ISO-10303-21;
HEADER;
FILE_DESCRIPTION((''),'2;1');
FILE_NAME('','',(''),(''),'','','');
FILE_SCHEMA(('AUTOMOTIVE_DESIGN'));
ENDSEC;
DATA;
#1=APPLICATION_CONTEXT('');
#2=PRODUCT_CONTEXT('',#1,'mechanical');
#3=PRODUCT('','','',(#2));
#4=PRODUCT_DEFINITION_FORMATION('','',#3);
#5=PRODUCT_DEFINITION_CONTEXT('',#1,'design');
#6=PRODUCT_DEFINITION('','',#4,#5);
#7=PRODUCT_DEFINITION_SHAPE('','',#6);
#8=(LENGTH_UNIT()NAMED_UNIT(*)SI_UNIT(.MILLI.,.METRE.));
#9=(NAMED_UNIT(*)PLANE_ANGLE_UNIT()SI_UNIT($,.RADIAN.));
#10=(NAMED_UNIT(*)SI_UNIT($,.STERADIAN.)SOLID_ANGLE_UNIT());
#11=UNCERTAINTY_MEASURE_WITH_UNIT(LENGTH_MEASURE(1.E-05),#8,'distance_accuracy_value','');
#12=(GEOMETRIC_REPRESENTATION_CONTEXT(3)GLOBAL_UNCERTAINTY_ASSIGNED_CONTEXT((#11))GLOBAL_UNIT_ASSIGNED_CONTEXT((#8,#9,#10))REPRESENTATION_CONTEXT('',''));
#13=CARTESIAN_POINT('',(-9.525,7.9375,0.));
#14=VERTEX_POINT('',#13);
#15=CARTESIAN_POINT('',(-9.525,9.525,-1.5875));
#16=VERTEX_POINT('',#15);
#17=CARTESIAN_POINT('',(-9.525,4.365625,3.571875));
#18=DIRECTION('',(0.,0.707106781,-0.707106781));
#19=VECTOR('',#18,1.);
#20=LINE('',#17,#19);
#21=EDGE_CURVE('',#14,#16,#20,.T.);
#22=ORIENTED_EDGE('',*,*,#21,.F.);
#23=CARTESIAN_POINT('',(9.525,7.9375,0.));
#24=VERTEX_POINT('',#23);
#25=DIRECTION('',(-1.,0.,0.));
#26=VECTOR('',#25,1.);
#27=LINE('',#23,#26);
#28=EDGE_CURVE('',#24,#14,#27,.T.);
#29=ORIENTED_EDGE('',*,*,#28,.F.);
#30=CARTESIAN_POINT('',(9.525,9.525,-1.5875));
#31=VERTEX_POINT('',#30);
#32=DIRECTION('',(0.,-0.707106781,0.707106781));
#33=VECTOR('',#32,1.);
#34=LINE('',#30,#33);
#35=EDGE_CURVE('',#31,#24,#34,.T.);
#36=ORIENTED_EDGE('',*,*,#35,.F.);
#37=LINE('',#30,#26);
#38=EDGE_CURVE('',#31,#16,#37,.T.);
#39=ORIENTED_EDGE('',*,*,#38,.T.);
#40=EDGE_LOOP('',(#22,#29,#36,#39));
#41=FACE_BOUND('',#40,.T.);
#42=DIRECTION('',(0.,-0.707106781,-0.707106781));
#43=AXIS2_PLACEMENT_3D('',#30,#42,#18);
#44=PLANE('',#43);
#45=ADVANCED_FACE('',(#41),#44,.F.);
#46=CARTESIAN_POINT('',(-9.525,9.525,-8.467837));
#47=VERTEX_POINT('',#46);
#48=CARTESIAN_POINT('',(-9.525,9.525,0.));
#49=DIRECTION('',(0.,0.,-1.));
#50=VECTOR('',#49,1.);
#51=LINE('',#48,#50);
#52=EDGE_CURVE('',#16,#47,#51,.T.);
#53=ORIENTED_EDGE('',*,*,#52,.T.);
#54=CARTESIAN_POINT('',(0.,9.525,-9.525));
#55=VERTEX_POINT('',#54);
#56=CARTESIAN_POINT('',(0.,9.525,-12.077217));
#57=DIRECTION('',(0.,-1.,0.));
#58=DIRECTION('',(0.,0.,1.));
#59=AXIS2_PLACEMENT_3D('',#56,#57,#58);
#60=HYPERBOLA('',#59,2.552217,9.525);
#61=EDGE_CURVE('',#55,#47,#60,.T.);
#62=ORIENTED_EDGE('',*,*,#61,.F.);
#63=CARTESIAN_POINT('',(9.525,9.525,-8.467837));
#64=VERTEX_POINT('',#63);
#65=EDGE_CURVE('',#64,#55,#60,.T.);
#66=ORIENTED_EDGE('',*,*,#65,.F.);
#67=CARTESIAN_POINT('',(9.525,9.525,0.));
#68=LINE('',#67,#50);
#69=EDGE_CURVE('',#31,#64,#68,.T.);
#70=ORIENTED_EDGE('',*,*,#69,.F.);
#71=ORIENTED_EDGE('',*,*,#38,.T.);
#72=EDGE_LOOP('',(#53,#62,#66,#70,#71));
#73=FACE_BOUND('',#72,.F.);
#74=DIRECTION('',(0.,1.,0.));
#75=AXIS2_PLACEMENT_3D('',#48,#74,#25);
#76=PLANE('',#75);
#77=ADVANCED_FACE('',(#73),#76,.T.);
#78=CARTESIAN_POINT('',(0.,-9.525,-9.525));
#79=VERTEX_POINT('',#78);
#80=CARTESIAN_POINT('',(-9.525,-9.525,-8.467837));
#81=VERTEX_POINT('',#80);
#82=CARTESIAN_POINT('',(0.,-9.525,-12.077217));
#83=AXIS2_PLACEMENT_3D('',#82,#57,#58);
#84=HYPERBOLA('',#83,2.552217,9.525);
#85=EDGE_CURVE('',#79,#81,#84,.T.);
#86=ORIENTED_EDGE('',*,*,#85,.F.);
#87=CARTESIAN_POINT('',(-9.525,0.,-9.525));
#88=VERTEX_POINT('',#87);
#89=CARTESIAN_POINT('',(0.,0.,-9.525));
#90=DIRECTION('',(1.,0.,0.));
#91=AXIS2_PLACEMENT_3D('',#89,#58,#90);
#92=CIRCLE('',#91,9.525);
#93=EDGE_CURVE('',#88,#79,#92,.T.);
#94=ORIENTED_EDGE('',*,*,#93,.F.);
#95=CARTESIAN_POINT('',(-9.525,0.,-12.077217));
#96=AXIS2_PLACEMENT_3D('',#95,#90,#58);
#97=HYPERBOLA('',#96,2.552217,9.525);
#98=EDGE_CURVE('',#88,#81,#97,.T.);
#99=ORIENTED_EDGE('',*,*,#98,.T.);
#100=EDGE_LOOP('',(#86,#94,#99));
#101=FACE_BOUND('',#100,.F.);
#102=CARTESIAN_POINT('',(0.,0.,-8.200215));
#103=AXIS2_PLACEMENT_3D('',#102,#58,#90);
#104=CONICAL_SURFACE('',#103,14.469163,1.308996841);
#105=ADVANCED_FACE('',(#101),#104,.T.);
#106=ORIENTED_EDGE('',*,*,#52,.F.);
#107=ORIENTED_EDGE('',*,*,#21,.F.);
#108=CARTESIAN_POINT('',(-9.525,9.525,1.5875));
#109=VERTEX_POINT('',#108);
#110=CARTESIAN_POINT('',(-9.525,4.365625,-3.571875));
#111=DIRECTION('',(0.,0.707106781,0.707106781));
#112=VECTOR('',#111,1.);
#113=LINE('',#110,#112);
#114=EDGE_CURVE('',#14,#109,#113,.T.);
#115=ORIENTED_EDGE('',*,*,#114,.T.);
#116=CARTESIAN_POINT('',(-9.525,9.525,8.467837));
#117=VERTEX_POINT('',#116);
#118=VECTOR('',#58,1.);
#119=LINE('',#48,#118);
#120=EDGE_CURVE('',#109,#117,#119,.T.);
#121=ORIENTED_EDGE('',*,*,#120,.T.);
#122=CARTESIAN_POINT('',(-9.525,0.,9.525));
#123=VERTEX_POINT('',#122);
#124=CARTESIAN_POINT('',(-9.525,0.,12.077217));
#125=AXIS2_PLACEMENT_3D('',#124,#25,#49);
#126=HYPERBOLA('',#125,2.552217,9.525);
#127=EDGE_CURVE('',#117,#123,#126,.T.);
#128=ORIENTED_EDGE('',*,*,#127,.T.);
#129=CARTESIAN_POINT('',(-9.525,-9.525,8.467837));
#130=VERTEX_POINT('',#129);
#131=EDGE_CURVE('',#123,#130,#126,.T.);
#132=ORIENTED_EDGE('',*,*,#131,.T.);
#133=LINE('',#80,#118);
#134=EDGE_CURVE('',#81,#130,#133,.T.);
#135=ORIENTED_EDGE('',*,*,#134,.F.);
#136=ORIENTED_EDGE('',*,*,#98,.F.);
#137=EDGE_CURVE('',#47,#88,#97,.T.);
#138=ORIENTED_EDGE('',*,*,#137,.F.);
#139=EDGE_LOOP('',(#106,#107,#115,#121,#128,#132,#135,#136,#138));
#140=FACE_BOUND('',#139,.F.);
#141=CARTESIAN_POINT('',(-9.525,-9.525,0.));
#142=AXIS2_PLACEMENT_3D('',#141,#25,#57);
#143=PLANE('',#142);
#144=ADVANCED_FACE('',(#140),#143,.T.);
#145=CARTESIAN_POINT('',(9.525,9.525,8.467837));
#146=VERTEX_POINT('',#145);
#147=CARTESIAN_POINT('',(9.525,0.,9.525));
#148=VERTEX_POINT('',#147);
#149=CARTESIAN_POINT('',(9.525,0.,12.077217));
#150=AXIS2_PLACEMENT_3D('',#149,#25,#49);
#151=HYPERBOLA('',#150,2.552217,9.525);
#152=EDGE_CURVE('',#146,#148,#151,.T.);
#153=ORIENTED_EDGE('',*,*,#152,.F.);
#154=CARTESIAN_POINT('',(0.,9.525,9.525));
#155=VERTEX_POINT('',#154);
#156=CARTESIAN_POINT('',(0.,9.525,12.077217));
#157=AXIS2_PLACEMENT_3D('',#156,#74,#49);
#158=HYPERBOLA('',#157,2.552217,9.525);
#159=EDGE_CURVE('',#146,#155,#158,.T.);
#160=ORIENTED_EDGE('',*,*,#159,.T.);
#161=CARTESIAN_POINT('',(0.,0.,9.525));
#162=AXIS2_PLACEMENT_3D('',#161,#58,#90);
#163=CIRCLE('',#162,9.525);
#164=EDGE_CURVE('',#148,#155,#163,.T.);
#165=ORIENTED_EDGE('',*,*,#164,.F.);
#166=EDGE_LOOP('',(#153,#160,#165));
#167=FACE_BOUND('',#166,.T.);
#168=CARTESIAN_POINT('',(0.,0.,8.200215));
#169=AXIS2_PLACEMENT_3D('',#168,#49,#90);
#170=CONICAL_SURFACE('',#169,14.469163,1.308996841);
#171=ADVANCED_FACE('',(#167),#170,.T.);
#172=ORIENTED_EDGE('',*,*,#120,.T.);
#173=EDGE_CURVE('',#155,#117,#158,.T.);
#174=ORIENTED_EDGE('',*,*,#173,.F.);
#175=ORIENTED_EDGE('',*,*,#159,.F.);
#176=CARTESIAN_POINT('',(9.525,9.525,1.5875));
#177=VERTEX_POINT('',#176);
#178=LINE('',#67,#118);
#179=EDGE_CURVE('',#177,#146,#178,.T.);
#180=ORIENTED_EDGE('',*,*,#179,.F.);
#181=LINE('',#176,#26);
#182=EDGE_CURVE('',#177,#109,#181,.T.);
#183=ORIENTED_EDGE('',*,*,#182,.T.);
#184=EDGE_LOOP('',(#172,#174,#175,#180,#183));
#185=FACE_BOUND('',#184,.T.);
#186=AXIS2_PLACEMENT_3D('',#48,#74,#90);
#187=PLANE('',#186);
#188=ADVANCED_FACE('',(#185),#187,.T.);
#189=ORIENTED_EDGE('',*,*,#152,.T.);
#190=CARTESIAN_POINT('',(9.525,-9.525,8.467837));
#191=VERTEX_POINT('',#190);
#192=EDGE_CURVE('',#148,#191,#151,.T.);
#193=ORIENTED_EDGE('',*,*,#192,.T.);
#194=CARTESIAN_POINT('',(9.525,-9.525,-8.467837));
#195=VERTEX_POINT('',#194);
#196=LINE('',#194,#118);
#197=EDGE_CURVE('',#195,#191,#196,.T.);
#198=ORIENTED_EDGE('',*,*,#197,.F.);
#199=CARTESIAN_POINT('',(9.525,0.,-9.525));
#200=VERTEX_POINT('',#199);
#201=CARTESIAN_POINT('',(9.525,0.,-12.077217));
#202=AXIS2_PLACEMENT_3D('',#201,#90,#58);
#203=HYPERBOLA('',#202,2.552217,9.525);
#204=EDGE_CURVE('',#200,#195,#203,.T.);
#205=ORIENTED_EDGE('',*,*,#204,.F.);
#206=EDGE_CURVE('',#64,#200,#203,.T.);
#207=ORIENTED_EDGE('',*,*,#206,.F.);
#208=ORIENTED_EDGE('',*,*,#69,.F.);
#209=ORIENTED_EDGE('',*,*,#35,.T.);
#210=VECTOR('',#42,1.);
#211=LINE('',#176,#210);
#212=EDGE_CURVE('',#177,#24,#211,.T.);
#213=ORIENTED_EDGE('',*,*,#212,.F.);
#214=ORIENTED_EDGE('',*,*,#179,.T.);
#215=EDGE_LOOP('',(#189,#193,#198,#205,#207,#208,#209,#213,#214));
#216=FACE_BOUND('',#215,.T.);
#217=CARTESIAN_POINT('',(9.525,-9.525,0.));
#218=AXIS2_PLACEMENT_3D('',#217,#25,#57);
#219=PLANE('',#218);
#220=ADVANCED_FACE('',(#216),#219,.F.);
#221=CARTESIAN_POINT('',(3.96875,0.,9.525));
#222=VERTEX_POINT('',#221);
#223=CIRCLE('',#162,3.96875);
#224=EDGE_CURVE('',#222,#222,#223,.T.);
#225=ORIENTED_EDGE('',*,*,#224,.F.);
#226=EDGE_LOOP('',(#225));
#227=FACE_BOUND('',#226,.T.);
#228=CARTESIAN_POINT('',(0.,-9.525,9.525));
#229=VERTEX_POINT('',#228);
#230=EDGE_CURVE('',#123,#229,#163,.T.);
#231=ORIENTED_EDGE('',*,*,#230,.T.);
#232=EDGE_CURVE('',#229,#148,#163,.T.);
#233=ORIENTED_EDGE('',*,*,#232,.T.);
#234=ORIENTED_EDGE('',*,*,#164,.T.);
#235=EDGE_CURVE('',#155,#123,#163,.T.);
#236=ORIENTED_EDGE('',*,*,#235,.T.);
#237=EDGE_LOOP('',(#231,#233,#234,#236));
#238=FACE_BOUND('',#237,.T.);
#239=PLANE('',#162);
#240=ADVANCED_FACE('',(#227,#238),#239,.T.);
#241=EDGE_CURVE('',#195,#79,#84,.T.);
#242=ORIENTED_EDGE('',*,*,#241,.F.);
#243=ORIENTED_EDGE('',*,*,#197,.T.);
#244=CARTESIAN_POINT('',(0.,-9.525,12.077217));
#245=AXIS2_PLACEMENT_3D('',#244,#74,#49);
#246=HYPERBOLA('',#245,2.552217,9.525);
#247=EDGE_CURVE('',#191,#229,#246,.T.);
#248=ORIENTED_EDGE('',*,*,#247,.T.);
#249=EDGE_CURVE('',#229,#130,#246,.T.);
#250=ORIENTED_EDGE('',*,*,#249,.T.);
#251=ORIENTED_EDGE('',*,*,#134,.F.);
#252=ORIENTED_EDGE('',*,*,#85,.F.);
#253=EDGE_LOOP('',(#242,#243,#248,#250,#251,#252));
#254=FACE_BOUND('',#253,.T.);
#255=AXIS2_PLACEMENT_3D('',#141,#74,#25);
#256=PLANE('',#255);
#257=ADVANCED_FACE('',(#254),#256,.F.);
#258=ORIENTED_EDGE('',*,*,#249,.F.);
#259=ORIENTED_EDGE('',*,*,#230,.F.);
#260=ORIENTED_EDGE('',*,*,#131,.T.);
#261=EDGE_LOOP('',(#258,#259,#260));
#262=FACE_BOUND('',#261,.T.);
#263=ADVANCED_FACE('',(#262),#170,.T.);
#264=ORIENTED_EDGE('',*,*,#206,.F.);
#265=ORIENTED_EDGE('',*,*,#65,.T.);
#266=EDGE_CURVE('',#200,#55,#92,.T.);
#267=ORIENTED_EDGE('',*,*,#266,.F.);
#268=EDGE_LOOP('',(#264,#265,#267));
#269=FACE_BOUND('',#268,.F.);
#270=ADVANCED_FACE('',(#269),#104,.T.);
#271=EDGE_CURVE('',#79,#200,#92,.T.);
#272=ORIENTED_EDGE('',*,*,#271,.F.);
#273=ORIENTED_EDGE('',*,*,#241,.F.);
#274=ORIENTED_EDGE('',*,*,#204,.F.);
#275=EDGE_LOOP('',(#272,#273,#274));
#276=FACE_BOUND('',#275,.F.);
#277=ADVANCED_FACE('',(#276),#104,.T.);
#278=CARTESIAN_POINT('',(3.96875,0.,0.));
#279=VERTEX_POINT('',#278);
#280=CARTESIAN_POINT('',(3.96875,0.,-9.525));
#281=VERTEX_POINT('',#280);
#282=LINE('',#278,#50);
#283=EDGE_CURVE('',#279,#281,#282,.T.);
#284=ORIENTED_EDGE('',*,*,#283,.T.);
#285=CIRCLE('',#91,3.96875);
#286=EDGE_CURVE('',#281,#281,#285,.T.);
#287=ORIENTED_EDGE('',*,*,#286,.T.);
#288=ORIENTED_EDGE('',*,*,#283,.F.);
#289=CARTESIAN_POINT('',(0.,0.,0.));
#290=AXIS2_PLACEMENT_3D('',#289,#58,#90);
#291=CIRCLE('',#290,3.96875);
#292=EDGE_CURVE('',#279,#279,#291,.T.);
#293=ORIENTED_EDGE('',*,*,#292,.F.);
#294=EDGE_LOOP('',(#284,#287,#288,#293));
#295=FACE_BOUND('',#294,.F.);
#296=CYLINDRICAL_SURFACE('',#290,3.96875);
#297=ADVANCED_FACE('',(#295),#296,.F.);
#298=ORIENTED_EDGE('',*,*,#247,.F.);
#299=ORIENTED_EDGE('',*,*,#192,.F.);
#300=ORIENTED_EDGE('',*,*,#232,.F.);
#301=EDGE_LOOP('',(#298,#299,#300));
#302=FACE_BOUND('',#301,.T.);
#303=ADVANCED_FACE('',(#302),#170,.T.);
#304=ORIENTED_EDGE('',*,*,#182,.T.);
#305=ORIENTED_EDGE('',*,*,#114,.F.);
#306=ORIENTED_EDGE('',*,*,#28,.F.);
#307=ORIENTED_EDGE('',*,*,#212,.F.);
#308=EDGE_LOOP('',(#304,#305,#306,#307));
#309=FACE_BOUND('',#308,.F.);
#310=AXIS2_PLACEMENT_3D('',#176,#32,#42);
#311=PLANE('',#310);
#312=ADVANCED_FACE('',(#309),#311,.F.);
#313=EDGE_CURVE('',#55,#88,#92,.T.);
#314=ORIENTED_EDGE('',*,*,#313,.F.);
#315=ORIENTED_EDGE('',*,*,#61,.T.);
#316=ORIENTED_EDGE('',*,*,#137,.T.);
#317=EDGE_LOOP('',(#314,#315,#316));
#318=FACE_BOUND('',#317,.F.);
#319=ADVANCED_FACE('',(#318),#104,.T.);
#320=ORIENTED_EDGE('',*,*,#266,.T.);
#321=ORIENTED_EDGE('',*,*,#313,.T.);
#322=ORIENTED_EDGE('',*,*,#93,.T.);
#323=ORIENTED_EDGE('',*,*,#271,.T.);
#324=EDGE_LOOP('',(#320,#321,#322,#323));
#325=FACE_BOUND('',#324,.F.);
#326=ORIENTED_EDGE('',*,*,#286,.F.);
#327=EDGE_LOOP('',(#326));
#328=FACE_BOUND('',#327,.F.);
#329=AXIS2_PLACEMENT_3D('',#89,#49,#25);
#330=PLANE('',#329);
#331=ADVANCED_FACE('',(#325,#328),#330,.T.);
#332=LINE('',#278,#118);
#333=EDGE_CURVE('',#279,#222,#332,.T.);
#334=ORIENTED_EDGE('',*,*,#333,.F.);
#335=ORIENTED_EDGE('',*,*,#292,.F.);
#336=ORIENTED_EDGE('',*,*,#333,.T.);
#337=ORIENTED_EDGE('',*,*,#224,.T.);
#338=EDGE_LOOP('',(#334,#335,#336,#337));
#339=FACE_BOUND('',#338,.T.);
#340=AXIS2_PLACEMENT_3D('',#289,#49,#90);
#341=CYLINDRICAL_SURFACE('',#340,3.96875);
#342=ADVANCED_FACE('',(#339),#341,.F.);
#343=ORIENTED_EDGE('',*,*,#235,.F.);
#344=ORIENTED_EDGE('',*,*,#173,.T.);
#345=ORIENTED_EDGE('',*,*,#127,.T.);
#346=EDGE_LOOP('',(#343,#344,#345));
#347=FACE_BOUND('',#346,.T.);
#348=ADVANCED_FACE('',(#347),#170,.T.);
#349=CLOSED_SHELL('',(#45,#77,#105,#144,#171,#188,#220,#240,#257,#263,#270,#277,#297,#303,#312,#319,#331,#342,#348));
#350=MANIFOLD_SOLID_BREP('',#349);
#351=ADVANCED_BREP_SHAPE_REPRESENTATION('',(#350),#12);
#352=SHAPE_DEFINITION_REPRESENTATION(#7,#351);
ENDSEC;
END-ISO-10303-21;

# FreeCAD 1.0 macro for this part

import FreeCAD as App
import Part
import Sketcher
Q = App.Units.Quantity

doc = App.newDocument("Part")
body = doc.addObject("PartDesign::Body", "Body")

# Sketch on XY plane
sketch1 = doc.addObject("Sketcher::SketchObject", "Sketch")
body.addObject(sketch1)
sketch1.AttachmentSupport = (doc.XY_Plane, [""])
sketch1.MapMode = "FlatFace"
sketch1.addGeometry(Part.LineSegment(App.Vector(-9.5, 9.5, 0), App.Vector(-9.5, -9.5, 0)), False)
sketch1.addGeometry(Part.LineSegment(App.Vector(-9.5, -9.5, 0), App.Vector(9.5, -9.5, 0)), False)
sketch1.addGeometry(Part.LineSegment(App.Vector(9.5, -9.5, 0), App.Vector(9.5, 9.5, 0)), False)
sketch1.addGeometry(Part.LineSegment(App.Vector(9.5, 9.5, 0), App.Vector(-9.5, 9.5, 0)), False)
sketch1.addGeometry(Part.Circle(App.Vector(0, 0, 0), App.Vector(0, 0, 1), 4), False)
sketch1.addConstraint(Sketcher.Constraint("Coincident", 0, 2, 1, 1))
sketch1.addConstraint(Sketcher.Constraint("Coincident", 1, 2, 2, 1))
sketch1.addConstraint(Sketcher.Constraint("Coincident", 2, 2, 3, 1))
sketch1.addConstraint(Sketcher.Constraint("Coincident", 3, 2, 0, 1))
sketch1.addConstraint(Sketcher.Constraint("Vertical", 0))
sketch1.addConstraint(Sketcher.Constraint("Horizontal", 1))
sketch1.addConstraint(Sketcher.Constraint("Vertical", 2))
sketch1.addConstraint(Sketcher.Constraint("Horizontal", 3))
sketch1.addConstraint(Sketcher.Constraint("Coincident", 4, 3, -1, 1))
sketch1.addConstraint(Sketcher.Constraint("Symmetric", 0, 2, 2, 2, -1, 1))
sketch1.addConstraint(Sketcher.Constraint("Equal", 3, 0))
sketch1.addConstraint(Sketcher.Constraint("Diameter", 4, Q("0.3125 in")))
sketch1.addConstraint(Sketcher.Constraint("DistanceX", 1, 1, 1, 2, Q("0.75 in")))
pad1 = doc.addObject("PartDesign::Pad", "Pad")
body.addObject(pad1)
pad1.Profile = sketch1
pad1.Length = Q("0.375 in")

# Sketch on YZ plane
sketch2 = doc.addObject("Sketcher::SketchObject", "Sketch001")
body.addObject(sketch2)
sketch2.AttachmentSupport = (doc.YZ_Plane, [""])
sketch2.MapMode = "FlatFace"
sketch2.addGeometry(Part.LineSegment(App.Vector(-14.5, 8.2, 0), App.Vector(-9.5, 9.5, 0)), False)
sketch2.addGeometry(Part.LineSegment(App.Vector(-9.5, 9.5, 0), App.Vector(-14.5, 9.5, 0)), False)
sketch2.addGeometry(Part.LineSegment(App.Vector(-14.5, 9.5, 0), App.Vector(-14.5, 8.2, 0)), False)
sketch2.addConstraint(Sketcher.Constraint("Coincident", 0, 2, 1, 1))
sketch2.addConstraint(Sketcher.Constraint("Coincident", 1, 2, 2, 1))
sketch2.addConstraint(Sketcher.Constraint("Coincident", 2, 2, 0, 1))
sketch2.addConstraint(Sketcher.Constraint("Horizontal", 1))
sketch2.addConstraint(Sketcher.Constraint("Vertical", 2))
sketch2.addConstraint(Sketcher.Constraint("Angle", 0, Q("15.000006 deg")))
sketch2.addConstraint(Sketcher.Constraint("DistanceX", 0, 2, -1, 1, Q("0.375 in")))
sketch2.addConstraint(Sketcher.Constraint("DistanceY", -1, 1, 0, 2, Q("0.375 in")))
sketch2.addConstraint(Sketcher.Constraint("DistanceX", 1, 2, 1, 1, 4.944163))

# Sketch on XY plane
sketch3 = doc.addObject("Sketcher::SketchObject", "Sketch002")
body.addObject(sketch3)
sketch3.AttachmentSupport = (doc.XY_Plane, [""])
sketch3.MapMode = "FlatFace"
sketch3.AttachmentOffset = App.Placement(App.Vector(0, 0, 0.375 * 25.4), App.Rotation())
sketch3.addGeometry(Part.Circle(App.Vector(0, 0, 0), App.Vector(0, 0, 1), 10), False)
sketch3.addConstraint(Sketcher.Constraint("Coincident", 0, 3, -1, 1))
sketch3.addConstraint(Sketcher.Constraint("Diameter", 0, Q("0.75 in")))
doc.recompute()

subtractivepipe = doc.addObject("PartDesign::SubtractivePipe", "SubtractivePipe")
body.addObject(subtractivepipe)
subtractivepipe.Profile = sketch2
subtractivepipe.Spine = (sketch3, ["Edge1"])

# Sketch on YZ plane
sketch4 = doc.addObject("Sketcher::SketchObject", "Sketch003")
body.addObject(sketch4)
sketch4.AttachmentSupport = (doc.YZ_Plane, [""])
sketch4.MapMode = "FlatFace"
sketch4.AttachmentOffset = App.Placement(App.Vector(0, 0, 0.375 * 25.4), App.Rotation())
sketch4.addGeometry(Part.LineSegment(App.Vector(7.9, 0, 0), App.Vector(9.5, 0, 0)), False)
sketch4.addGeometry(Part.LineSegment(App.Vector(9.5, 0, 0), App.Vector(9.5, 1.6, 0)), False)
sketch4.addGeometry(Part.LineSegment(App.Vector(9.5, 1.6, 0), App.Vector(7.9, 0, 0)), False)
sketch4.addConstraint(Sketcher.Constraint("Coincident", 0, 2, 1, 1))
sketch4.addConstraint(Sketcher.Constraint("Coincident", 1, 2, 2, 1))
sketch4.addConstraint(Sketcher.Constraint("Coincident", 2, 2, 0, 1))
sketch4.addConstraint(Sketcher.Constraint("Horizontal", 0))
sketch4.addConstraint(Sketcher.Constraint("Vertical", 1))
sketch4.addConstraint(Sketcher.Constraint("PointOnObject", 0, 2, -1))
sketch4.addConstraint(Sketcher.Constraint("Equal", 0, 1))
sketch4.addConstraint(Sketcher.Constraint("DistanceX", 0, 1, 0, 2, Q("0.0625 in")))
sketch4.addConstraint(Sketcher.Constraint("DistanceX", -1, 1, 0, 2, Q("0.375 in")))
pocket1 = doc.addObject("PartDesign::Pocket", "Pocket")
body.addObject(pocket1)
pocket1.Profile = sketch4
pocket1.Type = "ThroughAll"
body2 = doc.addObject("PartDesign::Body", "Body001")
doc.recompute()

body2.BaseFeature = body
doc.recompute()

mirroring = doc.addObject("Part::Mirroring", "Mirroring")
mirroring.Source = body
mirroring.Base = App.Vector(0, -0.932452, 0)
mirroring.Normal = App.Vector(0, 0, -1)
body3 = doc.addObject("PartDesign::Body", "Body002")
body3.BaseFeature = mirroring
boolean = doc.addObject("PartDesign::Boolean", "Boolean")
body2.addObject(boolean)
boolean.Type = "Fuse"
boolean.addObjects([body3])
doc.recompute()
mirroring.Visibility = False

doc.recompute()
